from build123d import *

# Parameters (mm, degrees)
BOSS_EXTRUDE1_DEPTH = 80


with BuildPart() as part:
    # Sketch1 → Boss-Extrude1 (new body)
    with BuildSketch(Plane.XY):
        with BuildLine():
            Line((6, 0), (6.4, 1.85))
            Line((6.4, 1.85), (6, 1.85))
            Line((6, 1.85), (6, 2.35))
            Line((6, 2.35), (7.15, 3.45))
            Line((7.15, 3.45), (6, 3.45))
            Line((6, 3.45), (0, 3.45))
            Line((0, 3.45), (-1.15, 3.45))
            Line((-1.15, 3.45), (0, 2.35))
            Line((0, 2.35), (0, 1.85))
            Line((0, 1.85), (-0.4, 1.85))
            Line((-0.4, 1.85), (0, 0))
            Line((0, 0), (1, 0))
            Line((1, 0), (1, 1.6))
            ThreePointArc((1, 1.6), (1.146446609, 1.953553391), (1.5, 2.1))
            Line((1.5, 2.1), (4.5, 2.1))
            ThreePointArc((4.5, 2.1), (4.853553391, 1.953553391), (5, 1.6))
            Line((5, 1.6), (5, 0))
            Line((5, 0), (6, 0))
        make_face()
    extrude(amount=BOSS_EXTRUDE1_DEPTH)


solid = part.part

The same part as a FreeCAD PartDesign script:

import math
import FreeCAD as App
import Part
import Sketcher

V = App.Vector

doc = App.newDocument("Part")
body = doc.addObject("PartDesign::Body", "Body")

sketch1 = body.newObject("Sketcher::SketchObject", "Sketch")
sketch1.AttachmentSupport = (doc.getObject("XY_Plane"), [""])
sketch1.MapMode = "FlatFace"
sketch1.addGeometry([
    Part.LineSegment(V(6, 0, 0), V(6.4, 1.85, 0)),
    Part.LineSegment(V(6.4, 1.85, 0), V(6, 1.85, 0)),
    Part.LineSegment(V(6, 1.85, 0), V(6, 2.35, 0)),
    Part.LineSegment(V(6, 2.35, 0), V(7.15, 3.45, 0)),
    Part.LineSegment(V(7.15, 3.45, 0), V(-1.15, 3.45, 0)),
    Part.LineSegment(V(-1.15, 3.45, 0), V(0, 2.35, 0)),
    Part.LineSegment(V(0, 2.35, 0), V(0, 1.85, 0)),
    Part.LineSegment(V(0, 1.85, 0), V(-0.4, 1.85, 0)),
    Part.LineSegment(V(-0.4, 1.85, 0), V(0, 0, 0)),
    Part.LineSegment(V(0, 0, 0), V(1, 0, 0)),
    Part.LineSegment(V(1, 0, 0), V(1, 1.6, 0)),
    Part.ArcOfCircle(Part.Circle(V(1.5, 1.6, 0), V(0, 0, 1), 0.5), math.radians(90), math.radians(180)),
    Part.LineSegment(V(1.5, 2.1, 0), V(4.5, 2.1, 0)),
    Part.ArcOfCircle(Part.Circle(V(4.5, 1.6, 0), V(0, 0, 1), 0.5), math.radians(0), math.radians(90)),
    Part.LineSegment(V(5, 1.6, 0), V(5, 0, 0)),
    Part.LineSegment(V(5, 0, 0), V(6, 0, 0)),
], False)
sketch1.addConstraint([
    Sketcher.Constraint("Coincident", 0, 2, 1, 1),
    Sketcher.Constraint("Coincident", 1, 2, 2, 1),
    Sketcher.Constraint("Coincident", 2, 2, 3, 1),
    Sketcher.Constraint("Coincident", 3, 2, 4, 1),
    Sketcher.Constraint("Coincident", 4, 2, 5, 1),
    Sketcher.Constraint("Coincident", 5, 2, 6, 1),
    Sketcher.Constraint("Coincident", 6, 2, 7, 1),
    Sketcher.Constraint("Coincident", 7, 2, 8, 1),
    Sketcher.Constraint("Coincident", 8, 2, 9, 1),
    Sketcher.Constraint("Coincident", 9, 2, 10, 1),
    Sketcher.Constraint("Tangent", 10, 2, 11, 2),
    Sketcher.Constraint("Tangent", 11, 1, 12, 1),
    Sketcher.Constraint("Tangent", 12, 2, 13, 2),
    Sketcher.Constraint("Tangent", 13, 1, 14, 1),
    Sketcher.Constraint("Coincident", 14, 2, 15, 1),
    Sketcher.Constraint("Coincident", 15, 2, 0, 1),
    Sketcher.Constraint("Horizontal", 1),
    Sketcher.Constraint("Vertical", 2),
    Sketcher.Constraint("Horizontal", 4),
    Sketcher.Constraint("Vertical", 6),
    Sketcher.Constraint("Horizontal", 7),
    Sketcher.Constraint("Horizontal", 9),
    Sketcher.Constraint("Vertical", 10),
    Sketcher.Constraint("Horizontal", 12),
    Sketcher.Constraint("Vertical", 14),
    Sketcher.Constraint("Horizontal", 15),
    Sketcher.Constraint("Coincident", 8, 2, -1, 1),
    Sketcher.Constraint("Equal", 11, 13),
    Sketcher.Constraint("PointOnObject", 5, 2, -2),
    Sketcher.Constraint("PointOnObject", 14, 2, -1),
    Sketcher.Constraint("Horizontal", 2, 2, 5, 2),
    Sketcher.Constraint("Horizontal", 1, 2, 6, 2),
    Sketcher.Constraint("Vertical", 2, 2, 15, 2),
    Sketcher.Constraint("Equal", 1, 7),
    Sketcher.Constraint("Equal", 9, 15),
    Sketcher.Constraint("Equal", 3, 5),
    Sketcher.Constraint("Radius", 11, 0.5),
    Sketcher.Constraint("DistanceX", 9, 1, 9, 2, 1.0),
    Sketcher.Constraint("DistanceX", 12, 1, 12, 2, 3.0),
    Sketcher.Constraint("DistanceX", 1, 2, 1, 1, 0.4),
    Sketcher.Constraint("DistanceX", 4, 2, 4, 1, 8.3),
    Sketcher.Constraint("DistanceY", 2, 1, 2, 2, 0.5),
    Sketcher.Constraint("DistanceY", 10, 1, 10, 2, 1.6),
    Sketcher.Constraint("DistanceY", 2, 2, 3, 2, 1.1),
    Sketcher.Constraint("DistanceY", -1, 1, 0, 2, 1.85),
])
pad1 = body.newObject("PartDesign::Pad", "Pad")
pad1.Profile = sketch1
pad1.Length = 80

doc.recompute()
